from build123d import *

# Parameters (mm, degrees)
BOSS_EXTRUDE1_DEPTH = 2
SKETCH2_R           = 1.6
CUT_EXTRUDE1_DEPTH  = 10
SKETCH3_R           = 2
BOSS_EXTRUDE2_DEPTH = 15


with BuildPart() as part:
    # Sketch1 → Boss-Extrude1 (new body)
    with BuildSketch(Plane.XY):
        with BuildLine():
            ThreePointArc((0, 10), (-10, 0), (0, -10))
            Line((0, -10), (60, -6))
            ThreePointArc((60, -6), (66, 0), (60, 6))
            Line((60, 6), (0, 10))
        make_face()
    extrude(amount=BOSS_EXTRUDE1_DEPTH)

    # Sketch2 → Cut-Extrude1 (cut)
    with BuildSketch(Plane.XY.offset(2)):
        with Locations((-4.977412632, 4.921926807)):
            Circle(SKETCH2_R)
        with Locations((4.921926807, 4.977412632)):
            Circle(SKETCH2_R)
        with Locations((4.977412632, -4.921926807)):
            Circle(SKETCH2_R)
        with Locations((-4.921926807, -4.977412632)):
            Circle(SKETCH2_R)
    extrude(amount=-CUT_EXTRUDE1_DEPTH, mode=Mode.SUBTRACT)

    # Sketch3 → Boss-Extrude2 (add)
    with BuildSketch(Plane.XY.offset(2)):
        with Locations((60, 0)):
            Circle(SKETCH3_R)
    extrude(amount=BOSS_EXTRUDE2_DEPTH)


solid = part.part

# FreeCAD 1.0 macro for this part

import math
import FreeCAD as App
import Part
import Sketcher
from FreeCAD import Vector
Q = App.Units.Quantity

doc = App.newDocument("Part")
body = doc.addObject("PartDesign::Body", "Body")

sketch1 = body.newObject("Sketcher::SketchObject", "Sketch")
sketch1.AttachmentSupport = (doc.getObject("XY_Plane"), [""])
sketch1.MapMode = "FlatFace"
sketch1.addGeometry([
    Part.ArcOfCircle(Part.Circle(Vector(0, 0, 0), Vector(0, 0, 1), 10), math.radians(90), math.radians(270)),
    Part.LineSegment(Vector(0, -10, 0), Vector(60, -6, 0)),
    Part.ArcOfCircle(Part.Circle(Vector(60, 0, 0), Vector(0, 0, 1), 6), math.radians(-90), math.radians(90)),
    Part.LineSegment(Vector(60, 6, 0), Vector(0, 10, 0)),
], False)
sketch1.addConstraint([
    Sketcher.Constraint("Coincident", 0, 2, 1, 1),
    Sketcher.Constraint("Coincident", 1, 2, 2, 1),
    Sketcher.Constraint("Coincident", 2, 2, 3, 1),
    Sketcher.Constraint("Coincident", 3, 2, 0, 1),
    Sketcher.Constraint("Coincident", 0, 3, -1, 1),
    Sketcher.Constraint("Symmetric", 1, 2, 2, 2, -1),
    Sketcher.Constraint("PointOnObject", 0, 2, -2),
    Sketcher.Constraint("PointOnObject", 3, 2, -2),
    Sketcher.Constraint("Vertical", 2, 3, 1, 2),
    Sketcher.Constraint("Radius", 0, Q("10 mm")),
    Sketcher.Constraint("Radius", 2, Q("6 mm")),
    Sketcher.Constraint("DistanceX", -1, 1, 2, 3, Q("60 mm")),
])
pad1 = body.newObject("PartDesign::Pad", "Pad")
pad1.Profile = sketch1
pad1.Length = 2

sketch2 = body.newObject("Sketcher::SketchObject", "Sketch001")
sketch2.AttachmentSupport = (doc.getObject("XY_Plane"), [""])
sketch2.MapMode = "FlatFace"
sketch2.AttachmentOffset = App.Placement(Vector(0, 0, 2), App.Rotation())
sketch2.addGeometry([
    Part.Circle(Vector(-5, 4.9, 0), Vector(0, 0, 1), 1.6),
    Part.Circle(Vector(4.9, 5, 0), Vector(0, 0, 1), 1.6),
    Part.Circle(Vector(5, -4.9, 0), Vector(0, 0, 1), 1.6),
    Part.Circle(Vector(-4.9, -5, 0), Vector(0, 0, 1), 1.6),
], False)
sketch2.addConstraint([
    Sketcher.Constraint("Equal", 0, 1),
    Sketcher.Constraint("Equal", 1, 2),
    Sketcher.Constraint("Equal", 2, 3),
    Sketcher.Constraint("Symmetric", 0, 3, 2, 3, -1, 1),
    Sketcher.Constraint("Symmetric", 1, 3, 3, 3, -1, 1),
    Sketcher.Constraint("Diameter", 0, Q("3.2 mm")),
    Sketcher.Constraint("DistanceX", 0, 3, 1, 3, Q("9.899339 mm")),
    Sketcher.Constraint("DistanceY", 2, 3, 1, 3, Q("9.899339 mm")),
    Sketcher.Constraint("DistanceX", 0, 3, -1, 1, Q("4.977413 mm")),
    Sketcher.Constraint("DistanceY", -1, 1, 0, 3, Q("4.921927 mm")),
])
pocket1 = body.newObject("PartDesign::Pocket", "Pocket")
pocket1.Profile = sketch2
pocket1.Length = 10

sketch3 = body.newObject("Sketcher::SketchObject", "Sketch002")
sketch3.AttachmentSupport = (doc.getObject("XY_Plane"), [""])
sketch3.MapMode = "FlatFace"
sketch3.AttachmentOffset = App.Placement(Vector(0, 0, 2), App.Rotation())
sketch3.addGeometry(Part.Circle(Vector(60, 0, 0), Vector(0, 0, 1), 2), False)
sketch3.addConstraint([
    Sketcher.Constraint("PointOnObject", 0, 3, -1),
    Sketcher.Constraint("Diameter", 0, Q("4 mm")),
    Sketcher.Constraint("DistanceX", -1, 1, 0, 3, Q("60 mm")),
])
pad2 = body.newObject("PartDesign::Pad", "Pad001")
pad2.Profile = sketch3
pad2.Length = 15

doc.recompute()
